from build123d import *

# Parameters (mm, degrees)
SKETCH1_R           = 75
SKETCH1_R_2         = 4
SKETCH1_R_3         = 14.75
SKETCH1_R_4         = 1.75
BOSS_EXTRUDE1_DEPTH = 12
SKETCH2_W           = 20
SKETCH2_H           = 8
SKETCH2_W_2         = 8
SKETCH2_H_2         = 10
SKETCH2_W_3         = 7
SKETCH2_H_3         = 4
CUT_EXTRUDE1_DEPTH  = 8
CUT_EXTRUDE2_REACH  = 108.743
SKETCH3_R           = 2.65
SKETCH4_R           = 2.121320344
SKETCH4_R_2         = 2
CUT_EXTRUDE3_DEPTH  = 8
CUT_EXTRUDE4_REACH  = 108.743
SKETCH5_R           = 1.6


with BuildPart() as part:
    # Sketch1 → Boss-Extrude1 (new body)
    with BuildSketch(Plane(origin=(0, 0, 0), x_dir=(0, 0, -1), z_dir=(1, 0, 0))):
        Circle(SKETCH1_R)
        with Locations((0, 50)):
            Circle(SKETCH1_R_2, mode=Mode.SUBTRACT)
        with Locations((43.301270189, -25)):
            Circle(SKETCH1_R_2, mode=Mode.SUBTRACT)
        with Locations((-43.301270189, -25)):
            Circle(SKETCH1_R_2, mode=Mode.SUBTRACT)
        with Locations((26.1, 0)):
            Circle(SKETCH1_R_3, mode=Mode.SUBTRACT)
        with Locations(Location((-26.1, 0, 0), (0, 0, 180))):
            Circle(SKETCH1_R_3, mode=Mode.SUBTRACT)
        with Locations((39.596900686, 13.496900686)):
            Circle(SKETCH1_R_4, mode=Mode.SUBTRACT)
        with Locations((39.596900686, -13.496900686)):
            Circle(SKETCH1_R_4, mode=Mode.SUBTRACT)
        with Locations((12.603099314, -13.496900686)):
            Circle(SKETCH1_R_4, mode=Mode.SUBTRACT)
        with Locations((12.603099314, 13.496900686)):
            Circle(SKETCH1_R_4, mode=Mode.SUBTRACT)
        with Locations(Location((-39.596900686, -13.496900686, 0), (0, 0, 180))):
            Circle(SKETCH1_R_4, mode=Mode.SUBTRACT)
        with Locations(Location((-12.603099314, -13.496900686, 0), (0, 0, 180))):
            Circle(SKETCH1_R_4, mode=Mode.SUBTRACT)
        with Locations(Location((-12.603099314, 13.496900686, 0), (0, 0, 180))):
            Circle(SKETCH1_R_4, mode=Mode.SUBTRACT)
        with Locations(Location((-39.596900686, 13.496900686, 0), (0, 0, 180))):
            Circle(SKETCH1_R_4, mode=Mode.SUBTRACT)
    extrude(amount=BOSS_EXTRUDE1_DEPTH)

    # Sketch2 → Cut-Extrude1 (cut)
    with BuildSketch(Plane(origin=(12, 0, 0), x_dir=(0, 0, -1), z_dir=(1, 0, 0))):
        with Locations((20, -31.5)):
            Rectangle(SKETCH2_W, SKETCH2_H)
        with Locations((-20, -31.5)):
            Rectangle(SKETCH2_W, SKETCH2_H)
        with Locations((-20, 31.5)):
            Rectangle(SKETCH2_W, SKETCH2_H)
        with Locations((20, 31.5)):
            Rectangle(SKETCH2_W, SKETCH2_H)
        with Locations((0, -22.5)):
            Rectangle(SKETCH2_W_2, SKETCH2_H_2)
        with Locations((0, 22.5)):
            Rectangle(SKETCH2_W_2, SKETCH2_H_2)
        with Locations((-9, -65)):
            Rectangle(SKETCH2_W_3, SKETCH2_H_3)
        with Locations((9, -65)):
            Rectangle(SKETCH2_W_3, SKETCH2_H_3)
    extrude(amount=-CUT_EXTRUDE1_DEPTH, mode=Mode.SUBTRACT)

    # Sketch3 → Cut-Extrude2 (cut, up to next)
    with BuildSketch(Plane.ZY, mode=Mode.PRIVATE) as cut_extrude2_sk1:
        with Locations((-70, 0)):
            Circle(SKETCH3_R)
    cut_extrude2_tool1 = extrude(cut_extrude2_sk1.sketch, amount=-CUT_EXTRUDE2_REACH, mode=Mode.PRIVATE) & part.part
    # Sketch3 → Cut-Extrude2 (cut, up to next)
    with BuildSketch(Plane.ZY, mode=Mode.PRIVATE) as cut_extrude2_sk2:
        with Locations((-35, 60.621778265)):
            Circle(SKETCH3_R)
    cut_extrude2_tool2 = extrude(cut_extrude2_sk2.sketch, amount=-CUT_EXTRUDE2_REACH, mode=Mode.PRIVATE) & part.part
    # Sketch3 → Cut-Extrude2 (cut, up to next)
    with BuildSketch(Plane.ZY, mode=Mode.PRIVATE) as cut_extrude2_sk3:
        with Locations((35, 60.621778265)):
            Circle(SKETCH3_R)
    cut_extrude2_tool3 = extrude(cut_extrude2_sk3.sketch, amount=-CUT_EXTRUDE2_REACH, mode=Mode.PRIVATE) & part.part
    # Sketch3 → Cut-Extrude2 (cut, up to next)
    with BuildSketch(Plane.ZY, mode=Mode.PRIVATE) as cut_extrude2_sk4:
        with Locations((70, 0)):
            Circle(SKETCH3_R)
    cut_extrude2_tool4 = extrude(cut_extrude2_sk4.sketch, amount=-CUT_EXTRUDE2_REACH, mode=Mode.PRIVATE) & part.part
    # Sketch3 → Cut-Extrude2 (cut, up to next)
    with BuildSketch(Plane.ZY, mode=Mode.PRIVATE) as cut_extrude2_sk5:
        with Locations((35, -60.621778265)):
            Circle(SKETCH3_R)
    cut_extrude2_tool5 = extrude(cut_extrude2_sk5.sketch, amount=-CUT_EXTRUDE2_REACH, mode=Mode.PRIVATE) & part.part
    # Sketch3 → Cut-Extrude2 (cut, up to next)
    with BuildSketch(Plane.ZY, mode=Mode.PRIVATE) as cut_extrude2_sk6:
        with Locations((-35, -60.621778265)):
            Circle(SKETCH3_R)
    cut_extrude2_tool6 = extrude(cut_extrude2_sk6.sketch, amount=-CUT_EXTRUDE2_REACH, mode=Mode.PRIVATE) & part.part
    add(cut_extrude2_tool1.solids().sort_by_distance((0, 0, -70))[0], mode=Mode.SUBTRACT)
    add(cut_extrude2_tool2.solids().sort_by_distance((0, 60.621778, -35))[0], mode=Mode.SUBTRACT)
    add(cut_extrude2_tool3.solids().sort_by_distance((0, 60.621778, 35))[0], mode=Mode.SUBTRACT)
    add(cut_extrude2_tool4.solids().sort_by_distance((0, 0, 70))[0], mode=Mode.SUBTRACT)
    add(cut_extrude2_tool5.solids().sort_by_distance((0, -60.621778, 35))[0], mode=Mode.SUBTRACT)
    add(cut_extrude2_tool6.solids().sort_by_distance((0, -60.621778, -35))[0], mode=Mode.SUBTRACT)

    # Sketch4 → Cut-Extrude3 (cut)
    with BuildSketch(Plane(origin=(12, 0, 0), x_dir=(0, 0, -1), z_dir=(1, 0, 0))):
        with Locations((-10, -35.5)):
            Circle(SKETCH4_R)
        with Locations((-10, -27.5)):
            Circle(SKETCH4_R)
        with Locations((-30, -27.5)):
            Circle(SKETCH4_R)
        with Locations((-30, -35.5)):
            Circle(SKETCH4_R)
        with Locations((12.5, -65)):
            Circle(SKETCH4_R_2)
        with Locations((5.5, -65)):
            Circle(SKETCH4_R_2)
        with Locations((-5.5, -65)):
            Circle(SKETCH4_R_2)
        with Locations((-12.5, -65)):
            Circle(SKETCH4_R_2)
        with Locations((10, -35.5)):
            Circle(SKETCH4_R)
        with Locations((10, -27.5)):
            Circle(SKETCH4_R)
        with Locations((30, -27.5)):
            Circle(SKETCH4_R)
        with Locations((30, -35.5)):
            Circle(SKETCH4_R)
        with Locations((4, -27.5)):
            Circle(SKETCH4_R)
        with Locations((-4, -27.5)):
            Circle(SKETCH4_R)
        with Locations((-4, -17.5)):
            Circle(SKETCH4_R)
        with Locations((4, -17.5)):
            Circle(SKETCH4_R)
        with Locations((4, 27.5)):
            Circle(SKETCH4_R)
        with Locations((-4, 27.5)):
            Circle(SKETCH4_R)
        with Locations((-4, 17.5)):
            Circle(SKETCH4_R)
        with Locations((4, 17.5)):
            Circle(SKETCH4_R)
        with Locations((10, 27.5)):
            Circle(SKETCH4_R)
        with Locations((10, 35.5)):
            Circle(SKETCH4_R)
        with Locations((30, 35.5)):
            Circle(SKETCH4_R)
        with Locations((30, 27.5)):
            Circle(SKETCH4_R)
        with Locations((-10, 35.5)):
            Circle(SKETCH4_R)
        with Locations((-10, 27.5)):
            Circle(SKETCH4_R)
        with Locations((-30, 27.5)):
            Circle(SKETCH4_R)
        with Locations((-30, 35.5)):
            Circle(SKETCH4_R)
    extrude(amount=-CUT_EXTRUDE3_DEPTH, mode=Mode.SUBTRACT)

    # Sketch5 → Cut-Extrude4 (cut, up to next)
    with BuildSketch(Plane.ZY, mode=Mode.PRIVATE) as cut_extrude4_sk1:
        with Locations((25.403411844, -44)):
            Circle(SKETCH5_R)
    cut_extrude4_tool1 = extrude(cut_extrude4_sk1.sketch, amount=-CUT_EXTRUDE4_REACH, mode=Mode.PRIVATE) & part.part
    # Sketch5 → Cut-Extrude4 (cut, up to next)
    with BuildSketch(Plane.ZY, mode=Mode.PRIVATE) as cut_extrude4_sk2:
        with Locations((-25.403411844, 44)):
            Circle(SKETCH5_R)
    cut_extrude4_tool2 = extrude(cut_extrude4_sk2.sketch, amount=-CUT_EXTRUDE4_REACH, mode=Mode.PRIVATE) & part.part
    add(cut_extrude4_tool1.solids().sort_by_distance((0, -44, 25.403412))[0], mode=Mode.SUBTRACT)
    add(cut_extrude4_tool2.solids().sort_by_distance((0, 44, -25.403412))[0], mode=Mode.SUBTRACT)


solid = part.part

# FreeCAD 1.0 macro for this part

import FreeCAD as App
import Part
import Sketcher

V = App.Vector
Q = App.Units.Quantity

doc = App.newDocument("Part")
body = doc.addObject("PartDesign::Body", "Body")

sketch1 = doc.addObject("Sketcher::SketchObject", "Sketch")
body.addObject(sketch1)
sketch1.AttachmentSupport = (doc.YZ_Plane, [""])
sketch1.MapMode = "FlatFace"
sketch1.addGeometry(Part.Circle(V(0, 0, 0), V(0, 0, 1), 75), False)
sketch1.addGeometry(Part.Circle(V(-25, 43.30127, 0), V(0, 0, 1), 4), False)
sketch1.addGeometry(Part.Circle(V(-13.496901, 39.596901, 0), V(0, 0, 1), 1.75), False)
sketch1.addGeometry(Part.Circle(V(-13.496901, 12.603099, 0), V(0, 0, 1), 1.75), False)
sketch1.addGeometry(Part.Circle(V(0, 26.1, 0), V(0, 0, 1), 14.75), False)
sketch1.addGeometry(Part.Circle(V(-13.496901, -12.603099, 0), V(0, 0, 1), 1.75), False)
sketch1.addGeometry(Part.Circle(V(-25, -43.30127, 0), V(0, 0, 1), 4), False)
sketch1.addGeometry(Part.Circle(V(-13.496901, -39.596901, 0), V(0, 0, 1), 1.75), False)
sketch1.addGeometry(Part.Circle(V(0, -26.1, 0), V(0, 0, 1), 14.75), False)
sketch1.addGeometry(Part.Circle(V(13.496901, 39.596901, 0), V(0, 0, 1), 1.75), False)
sketch1.addGeometry(Part.Circle(V(13.496901, 12.603099, 0), V(0, 0, 1), 1.75), False)
sketch1.addGeometry(Part.Circle(V(13.496901, -12.603099, 0), V(0, 0, 1), 1.75), False)
sketch1.addGeometry(Part.Circle(V(13.496901, -39.596901, 0), V(0, 0, 1), 1.75), False)
sketch1.addGeometry(Part.Circle(V(50, 0, 0), V(0, 0, 1), 4), False)
sketch1.addConstraint(Sketcher.Constraint("Coincident", 0, 3, -1, 1))
sketch1.addConstraint(Sketcher.Constraint("Equal", 2, 3))
sketch1.addConstraint(Sketcher.Constraint("Equal", 3, 5))
sketch1.addConstraint(Sketcher.Constraint("Equal", 1, 6))
sketch1.addConstraint(Sketcher.Constraint("Equal", 5, 7))
sketch1.addConstraint(Sketcher.Constraint("Equal", 4, 8))
sketch1.addConstraint(Sketcher.Constraint("Equal", 7, 9))
sketch1.addConstraint(Sketcher.Constraint("Equal", 9, 10))
sketch1.addConstraint(Sketcher.Constraint("Equal", 10, 11))
sketch1.addConstraint(Sketcher.Constraint("Equal", 11, 12))
sketch1.addConstraint(Sketcher.Constraint("Equal", 6, 13))
sketch1.addConstraint(Sketcher.Constraint("Symmetric", 4, 3, 8, 3, -1, 1))
sketch1.addConstraint(Sketcher.Constraint("Symmetric", 7, 3, 9, 3, -1, 1))
sketch1.addConstraint(Sketcher.Constraint("Symmetric", 5, 3, 10, 3, -1, 1))
sketch1.addConstraint(Sketcher.Constraint("Symmetric", 3, 3, 11, 3, -1, 1))
sketch1.addConstraint(Sketcher.Constraint("Symmetric", 2, 3, 12, 3, -1, 1))
sketch1.addConstraint(Sketcher.Constraint("Symmetric", 2, 3, 9, 3, -2))
sketch1.addConstraint(Sketcher.Constraint("Symmetric", 3, 3, 10, 3, -2))
sketch1.addConstraint(Sketcher.Constraint("Symmetric", 1, 3, 6, 3, -1))
sketch1.addConstraint(Sketcher.Constraint("PointOnObject", 4, 3, -2))
sketch1.addConstraint(Sketcher.Constraint("PointOnObject", 13, 3, -1))
sketch1.addConstraint(Sketcher.Constraint("Vertical", 2, 3, 3, 3))
sketch1.addConstraint(Sketcher.Constraint("Diameter", 0, Q("150 mm")))
sketch1.addConstraint(Sketcher.Constraint("Diameter", 1, Q("8 mm")))
sketch1.addConstraint(Sketcher.Constraint("Diameter", 2, Q("3.5 mm")))
sketch1.addConstraint(Sketcher.Constraint("Diameter", 4, Q("29.5 mm")))
sketch1.addConstraint(Sketcher.Constraint("DistanceX", 1, 3, -1, 1, Q("25 mm")))
sketch1.addConstraint(Sketcher.Constraint("DistanceX", -1, 1, 13, 3, Q("50 mm")))
sketch1.addConstraint(Sketcher.Constraint("DistanceY", -1, 1, 4, 3, Q("26.1 mm")))
sketch1.addConstraint(Sketcher.Constraint("DistanceY", 5, 3, 2, 3, Q("52.2 mm")))
sketch1.addConstraint(Sketcher.Constraint("DistanceX", 2, 3, -1, 1, Q("13.496901 mm")))
sketch1.addConstraint(Sketcher.Constraint("DistanceY", -1, 1, 2, 3, Q("39.596901 mm")))
sketch1.addConstraint(Sketcher.Constraint("DistanceY", -1, 1, 1, 3, Q("43.30127 mm")))
pad1 = doc.addObject("PartDesign::Pad", "Pad")
body.addObject(pad1)
pad1.Profile = sketch1
pad1.Length = 12

sketch2 = doc.addObject("Sketcher::SketchObject", "Sketch001")
body.addObject(sketch2)
sketch2.AttachmentSupport = (doc.YZ_Plane, [""])
sketch2.MapMode = "FlatFace"
sketch2.AttachmentOffset = App.Placement(V(0, 0, 12), App.Rotation())
sketch2.addGeometry(Part.LineSegment(V(-27.5, -10, 0), V(-35.5, -10, 0)), False)
sketch2.addGeometry(Part.LineSegment(V(-35.5, -10, 0), V(-35.5, -30, 0)), False)
sketch2.addGeometry(Part.LineSegment(V(-35.5, -30, 0), V(-27.5, -30, 0)), False)
sketch2.addGeometry(Part.LineSegment(V(-27.5, -30, 0), V(-27.5, -10, 0)), False)
sketch2.addGeometry(Part.LineSegment(V(-27.5, 30, 0), V(-35.5, 30, 0)), False)
sketch2.addGeometry(Part.LineSegment(V(-35.5, 30, 0), V(-35.5, 10, 0)), False)
sketch2.addGeometry(Part.LineSegment(V(-35.5, 10, 0), V(-27.5, 10, 0)), False)
sketch2.addGeometry(Part.LineSegment(V(-27.5, 10, 0), V(-27.5, 30, 0)), False)
sketch2.addGeometry(Part.LineSegment(V(35.5, 30, 0), V(27.5, 30, 0)), False)
sketch2.addGeometry(Part.LineSegment(V(27.5, 30, 0), V(27.5, 10, 0)), False)
sketch2.addGeometry(Part.LineSegment(V(27.5, 10, 0), V(35.5, 10, 0)), False)
sketch2.addGeometry(Part.LineSegment(V(35.5, 10, 0), V(35.5, 30, 0)), False)
sketch2.addGeometry(Part.LineSegment(V(35.5, -10, 0), V(27.5, -10, 0)), False)
sketch2.addGeometry(Part.LineSegment(V(27.5, -10, 0), V(27.5, -30, 0)), False)
sketch2.addGeometry(Part.LineSegment(V(27.5, -30, 0), V(35.5, -30, 0)), False)
sketch2.addGeometry(Part.LineSegment(V(35.5, -30, 0), V(35.5, -10, 0)), False)
sketch2.addGeometry(Part.LineSegment(V(-17.5, 4, 0), V(-27.5, 4, 0)), False)
sketch2.addGeometry(Part.LineSegment(V(-27.5, 4, 0), V(-27.5, -4, 0)), False)
sketch2.addGeometry(Part.LineSegment(V(-27.5, -4, 0), V(-17.5, -4, 0)), False)
sketch2.addGeometry(Part.LineSegment(V(-17.5, -4, 0), V(-17.5, 4, 0)), False)
sketch2.addGeometry(Part.LineSegment(V(27.5, 4, 0), V(17.5, 4, 0)), False)
sketch2.addGeometry(Part.LineSegment(V(17.5, 4, 0), V(17.5, -4, 0)), False)
sketch2.addGeometry(Part.LineSegment(V(17.5, -4, 0), V(27.5, -4, 0)), False)
sketch2.addGeometry(Part.LineSegment(V(27.5, -4, 0), V(27.5, 4, 0)), False)
sketch2.addGeometry(Part.LineSegment(V(-63, 12.5, 0), V(-67, 12.5, 0)), False)
sketch2.addGeometry(Part.LineSegment(V(-67, 12.5, 0), V(-67, 5.5, 0)), False)
sketch2.addGeometry(Part.LineSegment(V(-67, 5.5, 0), V(-63, 5.5, 0)), False)
sketch2.addGeometry(Part.LineSegment(V(-63, 5.5, 0), V(-63, 12.5, 0)), False)
sketch2.addGeometry(Part.LineSegment(V(-63, -5.5, 0), V(-67, -5.5, 0)), False)
sketch2.addGeometry(Part.LineSegment(V(-67, -5.5, 0), V(-67, -12.5, 0)), False)
sketch2.addGeometry(Part.LineSegment(V(-67, -12.5, 0), V(-63, -12.5, 0)), False)
sketch2.addGeometry(Part.LineSegment(V(-63, -12.5, 0), V(-63, -5.5, 0)), False)
sketch2.addConstraint(Sketcher.Constraint("Coincident", 0, 2, 1, 1))
sketch2.addConstraint(Sketcher.Constraint("Coincident", 1, 2, 2, 1))
sketch2.addConstraint(Sketcher.Constraint("Coincident", 2, 2, 3, 1))
sketch2.addConstraint(Sketcher.Constraint("Coincident", 3, 2, 0, 1))
sketch2.addConstraint(Sketcher.Constraint("Coincident", 4, 2, 5, 1))
sketch2.addConstraint(Sketcher.Constraint("Coincident", 5, 2, 6, 1))
sketch2.addConstraint(Sketcher.Constraint("Coincident", 6, 2, 7, 1))
sketch2.addConstraint(Sketcher.Constraint("Coincident", 7, 2, 4, 1))
sketch2.addConstraint(Sketcher.Constraint("Coincident", 8, 2, 9, 1))
sketch2.addConstraint(Sketcher.Constraint("Coincident", 9, 2, 10, 1))
sketch2.addConstraint(Sketcher.Constraint("Coincident", 10, 2, 11, 1))
sketch2.addConstraint(Sketcher.Constraint("Coincident", 11, 2, 8, 1))
sketch2.addConstraint(Sketcher.Constraint("Coincident", 12, 2, 13, 1))
sketch2.addConstraint(Sketcher.Constraint("Coincident", 13, 2, 14, 1))
sketch2.addConstraint(Sketcher.Constraint("Coincident", 14, 2, 15, 1))
sketch2.addConstraint(Sketcher.Constraint("Coincident", 15, 2, 12, 1))
sketch2.addConstraint(Sketcher.Constraint("Coincident", 16, 2, 17, 1))
sketch2.addConstraint(Sketcher.Constraint("Coincident", 17, 2, 18, 1))
sketch2.addConstraint(Sketcher.Constraint("Coincident", 18, 2, 19, 1))
sketch2.addConstraint(Sketcher.Constraint("Coincident", 19, 2, 16, 1))
sketch2.addConstraint(Sketcher.Constraint("Coincident", 20, 2, 21, 1))
sketch2.addConstraint(Sketcher.Constraint("Coincident", 21, 2, 22, 1))
sketch2.addConstraint(Sketcher.Constraint("Coincident", 22, 2, 23, 1))
sketch2.addConstraint(Sketcher.Constraint("Coincident", 23, 2, 20, 1))
sketch2.addConstraint(Sketcher.Constraint("Coincident", 24, 2, 25, 1))
sketch2.addConstraint(Sketcher.Constraint("Coincident", 25, 2, 26, 1))
sketch2.addConstraint(Sketcher.Constraint("Coincident", 26, 2, 27, 1))
sketch2.addConstraint(Sketcher.Constraint("Coincident", 27, 2, 24, 1))
sketch2.addConstraint(Sketcher.Constraint("Coincident", 28, 2, 29, 1))
sketch2.addConstraint(Sketcher.Constraint("Coincident", 29, 2, 30, 1))
sketch2.addConstraint(Sketcher.Constraint("Coincident", 30, 2, 31, 1))
sketch2.addConstraint(Sketcher.Constraint("Coincident", 31, 2, 28, 1))
sketch2.addConstraint(Sketcher.Constraint("Horizontal", 0))
sketch2.addConstraint(Sketcher.Constraint("Vertical", 1))
sketch2.addConstraint(Sketcher.Constraint("Horizontal", 2))
sketch2.addConstraint(Sketcher.Constraint("Vertical", 3))
sketch2.addConstraint(Sketcher.Constraint("Horizontal", 4))
sketch2.addConstraint(Sketcher.Constraint("Vertical", 5))
sketch2.addConstraint(Sketcher.Constraint("Horizontal", 6))
sketch2.addConstraint(Sketcher.Constraint("Vertical", 7))
sketch2.addConstraint(Sketcher.Constraint("Horizontal", 8))
sketch2.addConstraint(Sketcher.Constraint("Vertical", 9))
sketch2.addConstraint(Sketcher.Constraint("Horizontal", 10))
sketch2.addConstraint(Sketcher.Constraint("Vertical", 11))
sketch2.addConstraint(Sketcher.Constraint("Horizontal", 12))
sketch2.addConstraint(Sketcher.Constraint("Vertical", 13))
sketch2.addConstraint(Sketcher.Constraint("Horizontal", 14))
sketch2.addConstraint(Sketcher.Constraint("Vertical", 15))
sketch2.addConstraint(Sketcher.Constraint("Horizontal", 16))
sketch2.addConstraint(Sketcher.Constraint("Vertical", 17))
sketch2.addConstraint(Sketcher.Constraint("Horizontal", 18))
sketch2.addConstraint(Sketcher.Constraint("Vertical", 19))
sketch2.addConstraint(Sketcher.Constraint("Horizontal", 20))
sketch2.addConstraint(Sketcher.Constraint("Vertical", 21))
sketch2.addConstraint(Sketcher.Constraint("Horizontal", 22))
sketch2.addConstraint(Sketcher.Constraint("Vertical", 23))
sketch2.addConstraint(Sketcher.Constraint("Horizontal", 24))
sketch2.addConstraint(Sketcher.Constraint("Vertical", 25))
sketch2.addConstraint(Sketcher.Constraint("Horizontal", 26))
sketch2.addConstraint(Sketcher.Constraint("Vertical", 27))
sketch2.addConstraint(Sketcher.Constraint("Horizontal", 28))
sketch2.addConstraint(Sketcher.Constraint("Vertical", 29))
sketch2.addConstraint(Sketcher.Constraint("Horizontal", 30))
sketch2.addConstraint(Sketcher.Constraint("Vertical", 31))
sketch2.addConstraint(Sketcher.Constraint("Symmetric", 2, 2, 8, 2, -1, 1))
sketch2.addConstraint(Sketcher.Constraint("Symmetric", 0, 2, 10, 2, -1, 1))
sketch2.addConstraint(Sketcher.Constraint("Symmetric", 6, 2, 12, 2, -1, 1))
sketch2.addConstraint(Sketcher.Constraint("Symmetric", 4, 2, 14, 2, -1, 1))
sketch2.addConstraint(Sketcher.Constraint("Symmetric", 18, 2, 20, 2, -1, 1))
sketch2.addConstraint(Sketcher.Constraint("Symmetric", 16, 2, 22, 2, -1, 1))
sketch2.addConstraint(Sketcher.Constraint("Symmetric", 7, 2, 8, 2, -2))
sketch2.addConstraint(Sketcher.Constraint("Symmetric", 5, 2, 10, 2, -2))
sketch2.addConstraint(Sketcher.Constraint("Symmetric", 25, 2, 28, 2, -1))
sketch2.addConstraint(Sketcher.Constraint("Symmetric", 27, 2, 30, 2, -1))
sketch2.addConstraint(Sketcher.Constraint("Horizontal", 19, 2, 20, 2))
sketch2.addConstraint(Sketcher.Constraint("Vertical", 7, 2, 16, 2))
sketch2.addConstraint(Sketcher.Constraint("Equal", 14, 17))
sketch2.addConstraint(Sketcher.Constraint("DistanceX", 0, 2, 0, 1, Q("8 mm")))
sketch2.addConstraint(Sketcher.Constraint("DistanceX", 16, 2, 16, 1, Q("10 mm")))
sketch2.addConstraint(Sketcher.Constraint("DistanceX", 24, 2, 24, 1, Q("4 mm")))
sketch2.addConstraint(Sketcher.Constraint("DistanceY", 1, 2, 1, 1, Q("20 mm")))
sketch2.addConstraint(Sketcher.Constraint("DistanceY", 25, 2, 25, 1, Q("7 mm")))
sketch2.addConstraint(Sketcher.Constraint("DistanceY", 0, 2, -1, 1, Q("10 mm")))
sketch2.addConstraint(Sketcher.Constraint("DistanceX", 24, 2, -1, 1, Q("67 mm")))
sketch2.addConstraint(Sketcher.Constraint("DistanceX", 7, 2, 8, 2, Q("55 mm")))
sketch2.addConstraint(Sketcher.Constraint("DistanceY", 28, 2, 25, 2, Q("11 mm")))
pocket1 = doc.addObject("PartDesign::Pocket", "Pocket")
body.addObject(pocket1)
pocket1.Profile = sketch2
pocket1.Length = 8

sketch3 = doc.addObject("Sketcher::SketchObject", "Sketch002")
body.addObject(sketch3)
sketch3.AttachmentSupport = (doc.YZ_Plane, [""])
sketch3.MapMode = "FlatFace"
sketch3.addGeometry(Part.Circle(V(0, -70, 0), V(0, 0, 1), 2.65), False)
sketch3.addConstraint(Sketcher.Constraint("PointOnObject", 0, 3, -2))
sketch3.addConstraint(Sketcher.Constraint("Diameter", 0, Q("5.3 mm")))
sketch3.addConstraint(Sketcher.Constraint("DistanceY", 0, 3, -1, 1, Q("70 mm")))
pocket2 = doc.addObject("PartDesign::Pocket", "Pocket001")
body.addObject(pocket2)
pocket2.Profile = sketch3
pocket2.Type = "UpToFirst"
pocket2.Reversed = True

sketch4 = doc.addObject("Sketcher::SketchObject", "Sketch003")
body.addObject(sketch4)
sketch4.AttachmentSupport = (doc.YZ_Plane, [""])
sketch4.MapMode = "FlatFace"
sketch4.addGeometry(Part.Circle(V(60.621778, -35, 0), V(0, 0, 1), 2.65), False)
sketch4.addConstraint(Sketcher.Constraint("Diameter", 0, Q("5.3 mm")))
sketch4.addConstraint(Sketcher.Constraint("DistanceY", 0, 3, -1, 1, Q("35 mm")))
sketch4.addConstraint(Sketcher.Constraint("DistanceX", -1, 1, 0, 3, Q("60.621778 mm")))
pocket3 = doc.addObject("PartDesign::Pocket", "Pocket002")
body.addObject(pocket3)
pocket3.Profile = sketch4
pocket3.Type = "UpToFirst"
pocket3.Reversed = True

sketch5 = doc.addObject("Sketcher::SketchObject", "Sketch004")
body.addObject(sketch5)
sketch5.AttachmentSupport = (doc.YZ_Plane, [""])
sketch5.MapMode = "FlatFace"
sketch5.addGeometry(Part.Circle(V(60.621778, 35, 0), V(0, 0, 1), 2.65), False)
sketch5.addConstraint(Sketcher.Constraint("Diameter", 0, Q("5.3 mm")))
sketch5.addConstraint(Sketcher.Constraint("DistanceY", -1, 1, 0, 3, Q("35 mm")))
sketch5.addConstraint(Sketcher.Constraint("DistanceX", -1, 1, 0, 3, Q("60.621778 mm")))
pocket4 = doc.addObject("PartDesign::Pocket", "Pocket003")
body.addObject(pocket4)
pocket4.Profile = sketch5
pocket4.Type = "UpToFirst"
pocket4.Reversed = True

sketch6 = doc.addObject("Sketcher::SketchObject", "Sketch005")
body.addObject(sketch6)
sketch6.AttachmentSupport = (doc.YZ_Plane, [""])
sketch6.MapMode = "FlatFace"
sketch6.addGeometry(Part.Circle(V(0, 70, 0), V(0, 0, 1), 2.65), False)
sketch6.addConstraint(Sketcher.Constraint("PointOnObject", 0, 3, -2))
sketch6.addConstraint(Sketcher.Constraint("Diameter", 0, Q("5.3 mm")))
sketch6.addConstraint(Sketcher.Constraint("DistanceY", -1, 1, 0, 3, Q("70 mm")))
pocket5 = doc.addObject("PartDesign::Pocket", "Pocket004")
body.addObject(pocket5)
pocket5.Profile = sketch6
pocket5.Type = "UpToFirst"
pocket5.Reversed = True

sketch7 = doc.addObject("Sketcher::SketchObject", "Sketch006")
body.addObject(sketch7)
sketch7.AttachmentSupport = (doc.YZ_Plane, [""])
sketch7.MapMode = "FlatFace"
sketch7.addGeometry(Part.Circle(V(-60.621778, 35, 0), V(0, 0, 1), 2.65), False)
sketch7.addConstraint(Sketcher.Constraint("Diameter", 0, Q("5.3 mm")))
sketch7.addConstraint(Sketcher.Constraint("DistanceY", -1, 1, 0, 3, Q("35 mm")))
sketch7.addConstraint(Sketcher.Constraint("DistanceX", 0, 3, -1, 1, Q("60.621778 mm")))
pocket6 = doc.addObject("PartDesign::Pocket", "Pocket005")
body.addObject(pocket6)
pocket6.Profile = sketch7
pocket6.Type = "UpToFirst"
pocket6.Reversed = True

sketch8 = doc.addObject("Sketcher::SketchObject", "Sketch007")
body.addObject(sketch8)
sketch8.AttachmentSupport = (doc.YZ_Plane, [""])
sketch8.MapMode = "FlatFace"
sketch8.addGeometry(Part.Circle(V(-60.621778, -35, 0), V(0, 0, 1), 2.65), False)
sketch8.addConstraint(Sketcher.Constraint("Diameter", 0, Q("5.3 mm")))
sketch8.addConstraint(Sketcher.Constraint("DistanceY", 0, 3, -1, 1, Q("35 mm")))
sketch8.addConstraint(Sketcher.Constraint("DistanceX", 0, 3, -1, 1, Q("60.621778 mm")))
pocket7 = doc.addObject("PartDesign::Pocket", "Pocket006")
body.addObject(pocket7)
pocket7.Profile = sketch8
pocket7.Type = "UpToFirst"
pocket7.Reversed = True

sketch9 = doc.addObject("Sketcher::SketchObject", "Sketch008")
body.addObject(sketch9)
sketch9.AttachmentSupport = (doc.YZ_Plane, [""])
sketch9.MapMode = "FlatFace"
sketch9.AttachmentOffset = App.Placement(V(0, 0, 12), App.Rotation())
sketch9.addGeometry(Part.Circle(V(-35.5, 10, 0), V(0, 0, 1), 2.12132), False)
sketch9.addGeometry(Part.Circle(V(-27.5, 10, 0), V(0, 0, 1), 2.12132), False)
sketch9.addGeometry(Part.Circle(V(-27.5, 30, 0), V(0, 0, 1), 2.12132), False)
sketch9.addGeometry(Part.Circle(V(-35.5, 30, 0), V(0, 0, 1), 2.12132), False)
sketch9.addGeometry(Part.Circle(V(-65, -12.5, 0), V(0, 0, 1), 2), False)
sketch9.addGeometry(Part.Circle(V(-65, -5.5, 0), V(0, 0, 1), 2), False)
sketch9.addGeometry(Part.Circle(V(-65, 5.5, 0), V(0, 0, 1), 2), False)
sketch9.addGeometry(Part.Circle(V(-65, 12.5, 0), V(0, 0, 1), 2), False)
sketch9.addGeometry(Part.Circle(V(-35.5, -10, 0), V(0, 0, 1), 2.12132), False)
sketch9.addGeometry(Part.Circle(V(-27.5, -10, 0), V(0, 0, 1), 2.12132), False)
sketch9.addGeometry(Part.Circle(V(-27.5, -30, 0), V(0, 0, 1), 2.12132), False)
sketch9.addGeometry(Part.Circle(V(-35.5, -30, 0), V(0, 0, 1), 2.12132), False)
sketch9.addGeometry(Part.Circle(V(-27.5, -4, 0), V(0, 0, 1), 2.12132), False)
sketch9.addGeometry(Part.Circle(V(-27.5, 4, 0), V(0, 0, 1), 2.12132), False)
sketch9.addGeometry(Part.Circle(V(-17.5, 4, 0), V(0, 0, 1), 2.12132), False)
sketch9.addGeometry(Part.Circle(V(-17.5, -4, 0), V(0, 0, 1), 2.12132), False)
sketch9.addGeometry(Part.Circle(V(27.5, -4, 0), V(0, 0, 1), 2.12132), False)
sketch9.addGeometry(Part.Circle(V(27.5, 4, 0), V(0, 0, 1), 2.12132), False)
sketch9.addGeometry(Part.Circle(V(17.5, 4, 0), V(0, 0, 1), 2.12132), False)
sketch9.addGeometry(Part.Circle(V(17.5, -4, 0), V(0, 0, 1), 2.12132), False)
sketch9.addGeometry(Part.Circle(V(27.5, -10, 0), V(0, 0, 1), 2.12132), False)
sketch9.addGeometry(Part.Circle(V(35.5, -10, 0), V(0, 0, 1), 2.12132), False)
sketch9.addGeometry(Part.Circle(V(35.5, -30, 0), V(0, 0, 1), 2.12132), False)
sketch9.addGeometry(Part.Circle(V(27.5, -30, 0), V(0, 0, 1), 2.12132), False)
sketch9.addGeometry(Part.Circle(V(35.5, 10, 0), V(0, 0, 1), 2.12132), False)
sketch9.addGeometry(Part.Circle(V(27.5, 10, 0), V(0, 0, 1), 2.12132), False)
sketch9.addGeometry(Part.Circle(V(27.5, 30, 0), V(0, 0, 1), 2.12132), False)
sketch9.addGeometry(Part.Circle(V(35.5, 30, 0), V(0, 0, 1), 2.12132), False)
sketch9.addConstraint(Sketcher.Constraint("Equal", 0, 1))
sketch9.addConstraint(Sketcher.Constraint("Equal", 1, 2))
sketch9.addConstraint(Sketcher.Constraint("Equal", 2, 3))
sketch9.addConstraint(Sketcher.Constraint("Equal", 4, 5))
sketch9.addConstraint(Sketcher.Constraint("Equal", 5, 6))
sketch9.addConstraint(Sketcher.Constraint("Equal", 6, 7))
sketch9.addConstraint(Sketcher.Constraint("Equal", 3, 8))
sketch9.addConstraint(Sketcher.Constraint("Equal", 8, 9))
sketch9.addConstraint(Sketcher.Constraint("Equal", 9, 10))
sketch9.addConstraint(Sketcher.Constraint("Equal", 10, 11))
sketch9.addConstraint(Sketcher.Constraint("Equal", 11, 12))
sketch9.addConstraint(Sketcher.Constraint("Equal", 12, 13))
sketch9.addConstraint(Sketcher.Constraint("Equal", 13, 14))
sketch9.addConstraint(Sketcher.Constraint("Equal", 14, 15))
sketch9.addConstraint(Sketcher.Constraint("Equal", 15, 16))
sketch9.addConstraint(Sketcher.Constraint("Equal", 16, 17))
sketch9.addConstraint(Sketcher.Constraint("Equal", 17, 18))
sketch9.addConstraint(Sketcher.Constraint("Equal", 18, 19))
sketch9.addConstraint(Sketcher.Constraint("Equal", 19, 20))
sketch9.addConstraint(Sketcher.Constraint("Equal", 20, 21))
sketch9.addConstraint(Sketcher.Constraint("Equal", 21, 22))
sketch9.addConstraint(Sketcher.Constraint("Equal", 22, 23))
sketch9.addConstraint(Sketcher.Constraint("Equal", 23, 24))
sketch9.addConstraint(Sketcher.Constraint("Equal", 24, 25))
sketch9.addConstraint(Sketcher.Constraint("Equal", 25, 26))
sketch9.addConstraint(Sketcher.Constraint("Equal", 26, 27))
sketch9.addConstraint(Sketcher.Constraint("Symmetric", 13, 3, 16, 3, -1, 1))
sketch9.addConstraint(Sketcher.Constraint("Symmetric", 12, 3, 17, 3, -1, 1))
sketch9.addConstraint(Sketcher.Constraint("Symmetric", 15, 3, 18, 3, -1, 1))
sketch9.addConstraint(Sketcher.Constraint("Symmetric", 14, 3, 19, 3, -1, 1))
sketch9.addConstraint(Sketcher.Constraint("Symmetric", 1, 3, 20, 3, -1, 1))
sketch9.addConstraint(Sketcher.Constraint("Symmetric", 0, 3, 21, 3, -1, 1))
sketch9.addConstraint(Sketcher.Constraint("Symmetric", 3, 3, 22, 3, -1, 1))
sketch9.addConstraint(Sketcher.Constraint("Symmetric", 2, 3, 23, 3, -1, 1))
sketch9.addConstraint(Sketcher.Constraint("Symmetric", 8, 3, 24, 3, -1, 1))
sketch9.addConstraint(Sketcher.Constraint("Symmetric", 9, 3, 25, 3, -1, 1))
sketch9.addConstraint(Sketcher.Constraint("Symmetric", 10, 3, 26, 3, -1, 1))
sketch9.addConstraint(Sketcher.Constraint("Symmetric", 11, 3, 27, 3, -1, 1))
sketch9.addConstraint(Sketcher.Constraint("Symmetric", 12, 3, 16, 3, -2))
sketch9.addConstraint(Sketcher.Constraint("Symmetric", 14, 3, 18, 3, -2))
sketch9.addConstraint(Sketcher.Constraint("Symmetric", 9, 3, 20, 3, -2))
sketch9.addConstraint(Sketcher.Constraint("Symmetric", 8, 3, 21, 3, -2))
sketch9.addConstraint(Sketcher.Constraint("Symmetric", 11, 3, 22, 3, -2))
sketch9.addConstraint(Sketcher.Constraint("Symmetric", 10, 3, 23, 3, -2))
sketch9.addConstraint(Sketcher.Constraint("Symmetric", 5, 3, 6, 3, -1))
sketch9.addConstraint(Sketcher.Constraint("Symmetric", 4, 3, 7, 3, -1))
sketch9.addConstraint(Sketcher.Constraint("Horizontal", 0, 3, 1, 3))
sketch9.addConstraint(Sketcher.Constraint("Horizontal", 2, 3, 3, 3))
sketch9.addConstraint(Sketcher.Constraint("Horizontal", 13, 3, 14, 3))
sketch9.addConstraint(Sketcher.Constraint("Vertical", 1, 3, 2, 3))
sketch9.addConstraint(Sketcher.Constraint("Vertical", 0, 3, 3, 3))
sketch9.addConstraint(Sketcher.Constraint("Vertical", 4, 3, 5, 3))
sketch9.addConstraint(Sketcher.Constraint("Vertical", 10, 3, 12, 3))
sketch9.addConstraint(Sketcher.Constraint("Diameter", 4, Q("4 mm")))
sketch9.addConstraint(Sketcher.Constraint("DistanceY", -1, 1, 0, 3, Q("10 mm")))
sketch9.addConstraint(Sketcher.Constraint("DistanceY", -1, 1, 2, 3, Q("30 mm")))
sketch9.addConstraint(Sketcher.Constraint("DistanceX", 4, 3, -1, 1, Q("65 mm")))
sketch9.addConstraint(Sketcher.Constraint("DistanceY", 12, 3, -1, 1, Q("4 mm")))
sketch9.addConstraint(Sketcher.Constraint("DistanceX", 0, 3, 1, 3, Q("8 mm")))
sketch9.addConstraint(Sketcher.Constraint("DistanceY", 4, 3, 5, 3, Q("7 mm")))
sketch9.addConstraint(Sketcher.Constraint("DistanceY", 5, 3, 6, 3, Q("11 mm")))
sketch9.addConstraint(Sketcher.Constraint("DistanceX", 13, 3, 14, 3, Q("10 mm")))
sketch9.addConstraint(Sketcher.Constraint("DistanceX", 15, 3, 16, 3, Q("45 mm")))
sketch9.addConstraint(Sketcher.Constraint("Diameter", 0, Q("4.242641 mm")))
pocket8 = doc.addObject("PartDesign::Pocket", "Pocket007")
body.addObject(pocket8)
pocket8.Profile = sketch9
pocket8.Length = 8

sketch10 = doc.addObject("Sketcher::SketchObject", "Sketch009")
body.addObject(sketch10)
sketch10.AttachmentSupport = (doc.YZ_Plane, [""])
sketch10.MapMode = "FlatFace"
sketch10.addGeometry(Part.Circle(V(-44, 25.403412, 0), V(0, 0, 1), 1.6), False)
sketch10.addConstraint(Sketcher.Constraint("Diameter", 0, Q("3.2 mm")))
sketch10.addConstraint(Sketcher.Constraint("DistanceX", 0, 3, -1, 1, Q("44 mm")))
sketch10.addConstraint(Sketcher.Constraint("DistanceY", -1, 1, 0, 3, Q("25.403412 mm")))
pocket9 = doc.addObject("PartDesign::Pocket", "Pocket008")
body.addObject(pocket9)
pocket9.Profile = sketch10
pocket9.Type = "UpToFirst"
pocket9.Reversed = True

sketch11 = doc.addObject("Sketcher::SketchObject", "Sketch010")
body.addObject(sketch11)
sketch11.AttachmentSupport = (doc.YZ_Plane, [""])
sketch11.MapMode = "FlatFace"
sketch11.addGeometry(Part.Circle(V(44, -25.403412, 0), V(0, 0, 1), 1.6), False)
sketch11.addConstraint(Sketcher.Constraint("Diameter", 0, Q("3.2 mm")))
sketch11.addConstraint(Sketcher.Constraint("DistanceX", -1, 1, 0, 3, Q("44 mm")))
sketch11.addConstraint(Sketcher.Constraint("DistanceY", 0, 3, -1, 1, Q("25.403412 mm")))
pocket10 = doc.addObject("PartDesign::Pocket", "Pocket009")
body.addObject(pocket10)
pocket10.Profile = sketch11
pocket10.Type = "UpToFirst"
pocket10.Reversed = True

doc.recompute()
